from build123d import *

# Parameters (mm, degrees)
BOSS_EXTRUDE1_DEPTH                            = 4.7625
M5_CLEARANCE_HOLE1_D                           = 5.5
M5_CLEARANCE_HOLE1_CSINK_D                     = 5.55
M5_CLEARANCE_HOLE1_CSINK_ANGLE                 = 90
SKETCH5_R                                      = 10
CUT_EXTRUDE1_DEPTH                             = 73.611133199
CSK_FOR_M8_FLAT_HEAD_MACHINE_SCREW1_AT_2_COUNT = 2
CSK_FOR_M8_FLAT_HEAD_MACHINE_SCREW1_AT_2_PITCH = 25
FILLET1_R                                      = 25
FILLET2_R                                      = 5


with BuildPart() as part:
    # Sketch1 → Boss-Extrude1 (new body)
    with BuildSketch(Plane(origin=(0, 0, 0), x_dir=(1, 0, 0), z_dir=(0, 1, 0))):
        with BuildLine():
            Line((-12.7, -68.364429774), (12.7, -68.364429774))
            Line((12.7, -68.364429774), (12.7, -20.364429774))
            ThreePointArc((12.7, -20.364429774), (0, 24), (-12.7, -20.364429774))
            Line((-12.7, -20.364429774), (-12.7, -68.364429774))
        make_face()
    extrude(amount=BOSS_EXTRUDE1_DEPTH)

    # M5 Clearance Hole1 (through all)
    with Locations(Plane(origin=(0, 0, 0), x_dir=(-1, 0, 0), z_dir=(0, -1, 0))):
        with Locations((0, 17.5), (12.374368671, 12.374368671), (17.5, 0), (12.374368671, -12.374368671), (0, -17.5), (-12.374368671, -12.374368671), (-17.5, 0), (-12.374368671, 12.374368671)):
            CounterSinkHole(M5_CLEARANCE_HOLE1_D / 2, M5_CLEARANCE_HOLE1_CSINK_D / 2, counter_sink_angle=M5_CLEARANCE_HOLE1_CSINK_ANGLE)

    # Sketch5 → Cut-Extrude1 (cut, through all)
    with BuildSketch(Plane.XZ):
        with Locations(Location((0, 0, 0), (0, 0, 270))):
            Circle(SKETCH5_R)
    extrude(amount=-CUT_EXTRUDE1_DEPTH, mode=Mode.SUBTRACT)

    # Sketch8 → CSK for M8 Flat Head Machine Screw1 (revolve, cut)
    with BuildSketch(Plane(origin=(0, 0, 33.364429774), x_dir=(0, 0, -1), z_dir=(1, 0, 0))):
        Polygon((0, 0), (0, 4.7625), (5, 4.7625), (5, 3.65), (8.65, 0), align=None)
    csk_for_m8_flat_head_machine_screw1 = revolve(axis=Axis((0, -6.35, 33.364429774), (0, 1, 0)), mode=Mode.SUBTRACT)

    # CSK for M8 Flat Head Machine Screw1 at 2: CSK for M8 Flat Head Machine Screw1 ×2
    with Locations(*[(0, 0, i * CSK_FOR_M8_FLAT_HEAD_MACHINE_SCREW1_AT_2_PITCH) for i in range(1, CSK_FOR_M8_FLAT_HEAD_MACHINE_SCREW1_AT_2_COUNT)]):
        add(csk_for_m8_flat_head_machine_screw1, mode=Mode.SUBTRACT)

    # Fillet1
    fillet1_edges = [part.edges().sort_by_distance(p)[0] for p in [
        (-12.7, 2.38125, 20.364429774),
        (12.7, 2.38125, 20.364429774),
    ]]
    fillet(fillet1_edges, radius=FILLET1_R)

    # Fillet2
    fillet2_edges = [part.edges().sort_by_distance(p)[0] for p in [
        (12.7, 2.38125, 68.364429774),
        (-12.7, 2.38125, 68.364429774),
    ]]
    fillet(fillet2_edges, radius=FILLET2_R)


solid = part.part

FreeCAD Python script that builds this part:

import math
import FreeCAD as App
import Part
import Sketcher

V = App.Vector
Q = App.Units.Quantity


def edges_at(feature, points):
    """Names of the edges that pass closest to the given points."""
    edges = feature.Shape.Edges
    near = lambda p: min(range(len(edges)), key=lambda i: edges[i].distToShape(Part.Vertex(*p))[0])
    return sorted({f"Edge{near(p) + 1}" for p in points})


def add_polygon(sketch, points):
    """Adds a closed chain of lines whose ends are joined by coincident constraints."""
    first, n = sketch.GeometryCount, len(points)
    for a, b in zip(points, points[1:] + points[:1]):
        sketch.addGeometry(Part.LineSegment(App.Vector(*a, 0), App.Vector(*b, 0)), False)
    for i in range(n):
        sketch.addConstraint(Sketcher.Constraint("Coincident", first + i, 2, first + (i + 1) % n, 1))

doc = App.newDocument("Part")
body = doc.addObject("PartDesign::Body", "Body")

sketch1 = body.newObject("Sketcher::SketchObject", "Sketch")
sketch1.AttachmentSupport = (doc.getObject("XZ_Plane"), [""])
sketch1.MapMode = "FlatFace"
sketch1.addGeometry([
    Part.LineSegment(V(-13, 68, 0), V(13, 68, 0)),
    Part.LineSegment(V(13, 68, 0), V(13, 20, 0)),
    Part.ArcOfCircle(Part.Circle(V(0, 0, 0), V(0, 0, 1), 24), math.radians(122), math.radians(418)),
    Part.LineSegment(V(-13, 20, 0), V(-13, 68, 0)),
], False)
sketch1.addConstraint([
    Sketcher.Constraint("Coincident", 0, 2, 1, 1),
    Sketcher.Constraint("Coincident", 1, 2, 2, 2),
    Sketcher.Constraint("Coincident", 2, 1, 3, 1),
    Sketcher.Constraint("Coincident", 3, 2, 0, 1),
    Sketcher.Constraint("Horizontal", 0),
    Sketcher.Constraint("Vertical", 1),
    Sketcher.Constraint("Vertical", 3),
    Sketcher.Constraint("Coincident", 2, 3, -1, 1),
    Sketcher.Constraint("Horizontal", 1, 2, 2, 1),
    Sketcher.Constraint("Radius", 2, Q("24 mm")),
    Sketcher.Constraint("DistanceY", 1, 2, 1, 1, Q("48 mm")),
    Sketcher.Constraint("DistanceX", 0, 1, 0, 2, Q("25.4 mm")),
])
pad1 = body.newObject("PartDesign::Pad", "Pad")
pad1.Profile = sketch1
pad1.Length = 4.7625
pad1.Reversed = True

sketch2 = body.newObject("Sketcher::SketchObject", "Sketch001")
sketch2.AttachmentSupport = (doc.getObject("XZ_Plane"), [""])
sketch2.MapMode = "FlatFace"
sketch2.addGeometry([
    Part.Circle(V(0, -17.5, 0), V(0, 0, 1), 2.8),
    Part.Circle(V(-12.4, -12.4, 0), V(0, 0, 1), 2.8),
    Part.Circle(V(-17.5, 0, 0), V(0, 0, 1), 2.8),
    Part.Circle(V(-12.4, 12.4, 0), V(0, 0, 1), 2.8),
    Part.Circle(V(0, 17.5, 0), V(0, 0, 1), 2.8),
    Part.Circle(V(12.4, 12.4, 0), V(0, 0, 1), 2.8),
    Part.Circle(V(17.5, 0, 0), V(0, 0, 1), 2.8),
    Part.Circle(V(12.4, -12.4, 0), V(0, 0, 1), 2.8),
], False)
sketch2.addConstraint([
    Sketcher.Constraint("Equal", 0, 1),
    Sketcher.Constraint("Equal", 1, 2),
    Sketcher.Constraint("Equal", 2, 3),
    Sketcher.Constraint("Equal", 3, 4),
    Sketcher.Constraint("Equal", 4, 5),
    Sketcher.Constraint("Equal", 5, 6),
    Sketcher.Constraint("Equal", 6, 7),
    Sketcher.Constraint("Symmetric", 0, 3, 4, 3, -1, 1),
    Sketcher.Constraint("Symmetric", 1, 3, 5, 3, -1, 1),
    Sketcher.Constraint("Symmetric", 2, 3, 6, 3, -1, 1),
    Sketcher.Constraint("Symmetric", 3, 3, 7, 3, -1, 1),
    Sketcher.Constraint("Symmetric", 3, 3, 5, 3, -2),
    Sketcher.Constraint("PointOnObject", 0, 3, -2),
    Sketcher.Constraint("PointOnObject", 2, 3, -1),
    Sketcher.Constraint("Diameter", 0, Q("5.5 mm")),
    Sketcher.Constraint("DistanceY", 0, 3, 4, 3, Q("35 mm")),
    Sketcher.Constraint("DistanceX", 2, 3, -1, 1, Q("17.5 mm")),
    Sketcher.Constraint("DistanceX", 1, 3, -1, 1, Q("12.374369 mm")),
    Sketcher.Constraint("DistanceY", 1, 3, -1, 1, Q("12.374369 mm")),
])
doc.recompute()
hole = body.newObject("PartDesign::Hole", "Hole")
hole.Profile = sketch2
hole.ThreadType = "None"
hole.Diameter = 5.5
hole.DepthType = "ThroughAll"
hole.HoleCutType = "Countersink"
hole.HoleCutDiameter = 5.55
hole.HoleCutCountersinkAngle = 90

sketch3 = body.newObject("Sketcher::SketchObject", "Sketch002")
sketch3.AttachmentSupport = (doc.getObject("XZ_Plane"), [""])
sketch3.MapMode = "FlatFace"
sketch3.addGeometry(Part.Circle(V(0, 0, 0), V(0, 0, 1), 10), False)
sketch3.addConstraint([
    Sketcher.Constraint("Coincident", 0, 3, -1, 1),
    Sketcher.Constraint("Diameter", 0, Q("20 mm")),
])
pocket1 = body.newObject("PartDesign::Pocket", "Pocket")
pocket1.Profile = sketch3
pocket1.Type = "ThroughAll"

sketch4 = body.newObject("Sketcher::SketchObject", "Sketch003")
sketch4.AttachmentSupport = (doc.getObject("YZ_Plane"), [""])
sketch4.MapMode = "FlatFace"
add_polygon(sketch4, [(4.8, 33.4), (0, 33.4), (0, 24.7), (3.6, 28.4), (4.8, 28.4)])
sketch4.addGeometry(Part.LineSegment(V(0, 33.4, 0), V(4.8, 33.4, 0)), True)
sketch4.addConstraint([
    Sketcher.Constraint("Horizontal", 0),
    Sketcher.Constraint("Vertical", 1),
    Sketcher.Constraint("Horizontal", 3),
    Sketcher.Constraint("Vertical", 4),
    Sketcher.Constraint("Horizontal", 5),
    Sketcher.Constraint("Coincident", 5, 1, 0, 2),
    Sketcher.Constraint("PointOnObject", 0, 2, -2),
    Sketcher.Constraint("Vertical", 3, 2, 5, 2),
    Sketcher.Constraint("DistanceY", 4, 1, 4, 2, Q("5 mm")),
    Sketcher.Constraint("Angle", 2, Q("45 deg")),
    Sketcher.Constraint("DistanceY", 1, 2, 1, 1, Q("8.65 mm")),
    Sketcher.Constraint("DistanceX", 0, 2, 0, 1, Q("4.7625 mm")),
    Sketcher.Constraint("DistanceY", -1, 1, 0, 2, Q("33.36443 mm")),
])
groove = body.newObject("PartDesign::Groove", "Groove")
groove.Profile = sketch4
groove.ReferenceAxis = (sketch4, ["Axis0"])
groove.Angle = 360
doc.recompute()

linearpattern = body.newObject("PartDesign::LinearPattern", "LinearPattern")
linearpattern.Originals = [groove]
linearpattern.Direction = (doc.getObject("Z_Axis"), [""])
linearpattern.Mode = "offset"
linearpattern.Offset = 25
linearpattern.Occurrences = 2
body.Tip = linearpattern
doc.recompute()

fillet = body.newObject("PartDesign::Fillet", "Fillet")
fillet.Base = (linearpattern, edges_at(linearpattern, [(-12.7, 2.381, 20.364), (12.7, 2.381, 20.364)]))
fillet.Radius = 25
doc.recompute()

fillet2 = body.newObject("PartDesign::Fillet", "Fillet001")
fillet2.Base = (fillet, edges_at(fillet, [(12.7, 2.381, 68.364), (-12.7, 2.381, 68.364)]))
fillet2.Radius = 5

doc.recompute()
